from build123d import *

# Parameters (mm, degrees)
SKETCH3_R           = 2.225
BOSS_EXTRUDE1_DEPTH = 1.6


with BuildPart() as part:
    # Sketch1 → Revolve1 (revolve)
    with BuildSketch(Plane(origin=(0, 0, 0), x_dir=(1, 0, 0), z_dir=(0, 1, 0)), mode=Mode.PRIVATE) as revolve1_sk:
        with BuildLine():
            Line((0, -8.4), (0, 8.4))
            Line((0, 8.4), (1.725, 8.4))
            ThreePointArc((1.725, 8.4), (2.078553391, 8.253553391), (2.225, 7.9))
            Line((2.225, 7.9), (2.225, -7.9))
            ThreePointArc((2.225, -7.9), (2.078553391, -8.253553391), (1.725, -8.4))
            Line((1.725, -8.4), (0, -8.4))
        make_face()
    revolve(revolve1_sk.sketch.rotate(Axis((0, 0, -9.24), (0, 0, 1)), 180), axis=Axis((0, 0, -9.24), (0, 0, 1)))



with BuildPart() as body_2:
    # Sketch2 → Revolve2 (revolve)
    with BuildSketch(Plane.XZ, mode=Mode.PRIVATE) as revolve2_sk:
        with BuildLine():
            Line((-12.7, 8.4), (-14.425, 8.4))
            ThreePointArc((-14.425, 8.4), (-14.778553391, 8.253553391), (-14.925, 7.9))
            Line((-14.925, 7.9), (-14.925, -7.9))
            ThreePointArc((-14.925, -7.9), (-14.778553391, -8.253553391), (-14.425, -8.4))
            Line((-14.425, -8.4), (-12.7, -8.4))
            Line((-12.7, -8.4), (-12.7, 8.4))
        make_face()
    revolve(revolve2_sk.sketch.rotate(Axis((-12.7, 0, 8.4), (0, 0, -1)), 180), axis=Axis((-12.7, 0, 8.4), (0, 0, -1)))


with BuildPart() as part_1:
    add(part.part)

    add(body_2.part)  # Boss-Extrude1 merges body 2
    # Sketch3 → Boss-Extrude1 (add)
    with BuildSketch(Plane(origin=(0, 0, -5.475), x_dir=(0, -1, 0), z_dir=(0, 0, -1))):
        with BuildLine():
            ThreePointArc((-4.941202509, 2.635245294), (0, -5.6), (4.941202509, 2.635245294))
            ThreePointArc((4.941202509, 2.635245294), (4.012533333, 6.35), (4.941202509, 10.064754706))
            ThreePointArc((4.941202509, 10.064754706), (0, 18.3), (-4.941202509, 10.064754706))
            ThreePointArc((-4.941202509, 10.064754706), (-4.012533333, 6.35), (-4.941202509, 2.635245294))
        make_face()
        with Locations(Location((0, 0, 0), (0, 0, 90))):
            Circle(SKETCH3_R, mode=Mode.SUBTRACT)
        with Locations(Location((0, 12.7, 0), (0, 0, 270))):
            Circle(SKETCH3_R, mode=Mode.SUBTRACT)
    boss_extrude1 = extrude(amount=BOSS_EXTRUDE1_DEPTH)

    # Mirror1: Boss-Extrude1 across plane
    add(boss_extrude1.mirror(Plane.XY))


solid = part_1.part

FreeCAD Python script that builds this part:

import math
import FreeCAD as App
import Part
import Sketcher

V = App.Vector
Q = App.Units.Quantity

doc = App.newDocument("Part")
body = doc.addObject("PartDesign::Body", "Body")

# Sketch on XZ plane
sketch1 = body.newObject("Sketcher::SketchObject", "Sketch")
sketch1.AttachmentSupport = (doc.getObject("XZ_Plane"), [""])
sketch1.MapMode = "FlatFace"
sketch1.addGeometry([
    Part.LineSegment(V(0, -8.4, 0), V(0, 8.4, 0)),  # 0
    Part.LineSegment(V(0, 8.4, 0), V(1.73, 8.4, 0)),  # 1
    Part.ArcOfCircle(Part.Circle(V(1.73, 7.9, 0), V(0, 0, 1), 0.5), math.radians(0), math.radians(90)),  # 2
    Part.LineSegment(V(2.23, 7.9, 0), V(2.23, -7.9, 0)),  # 3
    Part.ArcOfCircle(Part.Circle(V(1.73, -7.9, 0), V(0, 0, 1), 0.5), math.radians(-90), math.radians(0)),  # 4
    Part.LineSegment(V(1.73, -8.4, 0), V(0, -8.4, 0)),  # 5
], False)
sketch1.addConstraint([
    Sketcher.Constraint("Coincident", 0, 2, 1, 1),
    Sketcher.Constraint("Tangent", 1, 2, 2, 2),
    Sketcher.Constraint("Tangent", 2, 1, 3, 1),
    Sketcher.Constraint("Tangent", 3, 2, 4, 2),
    Sketcher.Constraint("Tangent", 4, 1, 5, 1),
    Sketcher.Constraint("Coincident", 5, 2, 0, 1),
    Sketcher.Constraint("Vertical", 0),
    Sketcher.Constraint("Horizontal", 1),
    Sketcher.Constraint("Vertical", 3),
    Sketcher.Constraint("Horizontal", 5),
    Sketcher.Constraint("Equal", 2, 4),
    Sketcher.Constraint("Symmetric", 0, 2, 5, 2, -1, 1),
    Sketcher.Constraint("Radius", 2, Q("0.5 mm")),
    Sketcher.Constraint("DistanceY", 0, 1, 0, 2, Q("16.8 mm")),
    Sketcher.Constraint("DistanceX", 1, 1, 1, 2, Q("1.725 mm")),
])
revolution = body.newObject("PartDesign::Revolution", "Revolution")
revolution.Profile = sketch1
revolution.ReferenceAxis = (sketch1, ["V_Axis"])
revolution.Angle = 360
body2 = doc.addObject("PartDesign::Body", "Body001")

# Sketch on XZ plane
sketch2 = body2.newObject("Sketcher::SketchObject", "Sketch001")
sketch2.AttachmentSupport = (doc.getObject("XZ_Plane001"), [""])
sketch2.MapMode = "FlatFace"
sketch2.addGeometry([
    Part.LineSegment(V(-12.7, 8.4, 0), V(-14.43, 8.4, 0)),  # 0
    Part.ArcOfCircle(Part.Circle(V(-14.43, 7.9, 0), V(0, 0, 1), 0.5), math.radians(90), math.radians(180)),  # 1
    Part.LineSegment(V(-14.93, 7.9, 0), V(-14.93, -7.9, 0)),  # 2
    Part.ArcOfCircle(Part.Circle(V(-14.43, -7.9, 0), V(0, 0, 1), 0.5), math.radians(180), math.radians(270)),  # 3
    Part.LineSegment(V(-14.43, -8.4, 0), V(-12.7, -8.4, 0)),  # 4
    Part.LineSegment(V(-12.7, -8.4, 0), V(-12.7, 8.4, 0)),  # 5
], False)
sketch2.addGeometry(Part.LineSegment(V(-12.7, 8.4, 0), V(-12.7, -8.4, 0)), True)  # axis
sketch2.addConstraint([
    Sketcher.Constraint("Tangent", 0, 2, 1, 1),
    Sketcher.Constraint("Tangent", 1, 2, 2, 1),
    Sketcher.Constraint("Tangent", 2, 2, 3, 1),
    Sketcher.Constraint("Tangent", 3, 2, 4, 1),
    Sketcher.Constraint("Coincident", 4, 2, 5, 1),
    Sketcher.Constraint("Coincident", 5, 2, 0, 1),
    Sketcher.Constraint("Horizontal", 0),
    Sketcher.Constraint("Vertical", 2),
    Sketcher.Constraint("Horizontal", 4),
    Sketcher.Constraint("Vertical", 5),
    Sketcher.Constraint("Vertical", 6),
    Sketcher.Constraint("Coincident", 6, 1, 5, 2),
    Sketcher.Constraint("Equal", 1, 3),
    Sketcher.Constraint("Horizontal", 3, 2, 6, 2),
    Sketcher.Constraint("Radius", 1, Q("0.5 mm")),
    Sketcher.Constraint("DistanceY", 2, 2, 2, 1, Q("15.8 mm")),
    Sketcher.Constraint("DistanceY", -1, 1, 1, 3, Q("7.9 mm")),
    Sketcher.Constraint("DistanceX", 4, 2, -1, 1, Q("12.7 mm")),
    Sketcher.Constraint("DistanceX", 0, 2, 0, 1, Q("1.725 mm")),
])
revolution2 = body2.newObject("PartDesign::Revolution", "Revolution001")
revolution2.Profile = sketch2
revolution2.ReferenceAxis = (sketch2, ["Axis0"])
revolution2.Angle = 360
body.AllowCompound = True
doc.recompute()

boolean = body.newObject("PartDesign::Boolean", "Boolean")
boolean.Type = "Fuse"
boolean.addObjects([body2])

# Sketch on XY plane
sketch3 = body.newObject("Sketcher::SketchObject", "Sketch002")
sketch3.AttachmentSupport = (doc.getObject("XY_Plane"), [""])
sketch3.MapMode = "FlatFace"
sketch3.AttachmentOffset = App.Placement(V(0, 0, -5.475), App.Rotation())
sketch3.addGeometry([
    Part.ArcOfCircle(Part.Circle(V(0, 0, 0), V(0, 0, 1), 5.6), math.radians(-118), math.radians(118)),  # 0
    Part.ArcOfCircle(Part.Circle(V(-6.3, -11.9, 0), V(0, 0, 1), 7.9), math.radians(62), math.radians(118)),  # 1
    Part.ArcOfCircle(Part.Circle(V(-12.7, 0, 0), V(0, 0, 1), 5.6), math.radians(62), math.radians(298)),  # 2
    Part.ArcOfCircle(Part.Circle(V(-6.3, 11.9, 0), V(0, 0, 1), 7.9), math.radians(-118), math.radians(-62)),  # 3
    Part.Circle(V(0, 0, 0), V(0, 0, 1), 2.2),  # 4
    Part.Circle(V(-12.7, 0, 0), V(0, 0, 1), 2.2),  # 5
], False)
sketch3.addConstraint([
    Sketcher.Constraint("Tangent", 0, 1, 1, 1),
    Sketcher.Constraint("Tangent", 1, 2, 2, 2),
    Sketcher.Constraint("Tangent", 2, 1, 3, 1),
    Sketcher.Constraint("Tangent", 3, 2, 0, 2),
    Sketcher.Constraint("Coincident", 0, 3, -1, 1),
    Sketcher.Constraint("Coincident", 4, 3, -1, 1),
    Sketcher.Constraint("Coincident", 5, 3, 2, 3),
    Sketcher.Constraint("Equal", 0, 2),
    Sketcher.Constraint("Equal", 1, 3),
    Sketcher.Constraint("Equal", 4, 5),
    Sketcher.Constraint("PointOnObject", 2, 3, -1),
    Sketcher.Constraint("Radius", 0, Q("5.6 mm")),
    Sketcher.Constraint("Diameter", 4, Q("4.45 mm")),
    Sketcher.Constraint("Radius", 1, Q("7.894 mm")),
    Sketcher.Constraint("DistanceX", 2, 3, -1, 1, Q("12.7 mm")),
])
pad1 = body.newObject("PartDesign::Pad", "Pad")
pad1.Profile = sketch3
pad1.Length = 1.6
pad1.Reversed = True
doc.recompute()

mirrored = body.newObject("PartDesign::Mirrored", "Mirrored")
mirrored.Originals = [pad1]
mirrored.MirrorPlane = (doc.getObject("XY_Plane"), [""])
body.Tip = mirrored

doc.recompute()
